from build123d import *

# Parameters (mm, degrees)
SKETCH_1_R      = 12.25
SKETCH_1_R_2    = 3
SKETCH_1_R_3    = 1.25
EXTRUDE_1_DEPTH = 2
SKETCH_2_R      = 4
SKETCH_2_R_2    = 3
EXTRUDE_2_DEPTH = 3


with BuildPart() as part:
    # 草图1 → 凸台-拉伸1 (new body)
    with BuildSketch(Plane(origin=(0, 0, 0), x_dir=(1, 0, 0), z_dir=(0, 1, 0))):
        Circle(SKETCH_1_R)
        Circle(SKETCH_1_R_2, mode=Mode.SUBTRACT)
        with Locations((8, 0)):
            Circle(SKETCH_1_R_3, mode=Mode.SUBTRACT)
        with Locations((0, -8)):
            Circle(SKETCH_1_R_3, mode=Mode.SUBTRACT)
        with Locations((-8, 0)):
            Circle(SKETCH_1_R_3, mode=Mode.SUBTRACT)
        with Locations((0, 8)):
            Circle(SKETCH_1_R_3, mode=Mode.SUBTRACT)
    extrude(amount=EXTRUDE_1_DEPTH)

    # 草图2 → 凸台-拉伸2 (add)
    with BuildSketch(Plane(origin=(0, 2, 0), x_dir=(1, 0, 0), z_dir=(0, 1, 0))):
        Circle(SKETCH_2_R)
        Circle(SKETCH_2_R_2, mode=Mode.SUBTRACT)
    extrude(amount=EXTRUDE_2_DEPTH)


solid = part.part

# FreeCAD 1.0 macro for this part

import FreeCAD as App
import Part
import Sketcher

V = App.Vector
Q = App.Units.Quantity

doc = App.newDocument("Part")
body = doc.addObject("PartDesign::Body", "Body")

# Sketch on XZ plane
sketch1 = body.newObject("Sketcher::SketchObject", "Sketch")
sketch1.AttachmentSupport = (doc.getObject("XZ_Plane"), [""])
sketch1.MapMode = "FlatFace"
sketch1.addGeometry(Part.Circle(V(0, 0, 0), V(0, 0, 1), 12.2), False)
sketch1.addGeometry(Part.Circle(V(0, 8, 0), V(0, 0, 1), 1.2), False)
sketch1.addGeometry(Part.Circle(V(-8, 0, 0), V(0, 0, 1), 1.2), False)
sketch1.addGeometry(Part.Circle(V(0, 0, 0), V(0, 0, 1), 3), False)
sketch1.addGeometry(Part.Circle(V(8, 0, 0), V(0, 0, 1), 1.2), False)
sketch1.addGeometry(Part.Circle(V(0, -8, 0), V(0, 0, 1), 1.2), False)
sketch1.addConstraint(Sketcher.Constraint("Coincident", 0, 3, -1, 1))
sketch1.addConstraint(Sketcher.Constraint("Coincident", 3, 3, -1, 1))
sketch1.addConstraint(Sketcher.Constraint("Equal", 1, 2))
sketch1.addConstraint(Sketcher.Constraint("Equal", 2, 4))
sketch1.addConstraint(Sketcher.Constraint("Equal", 4, 5))
sketch1.addConstraint(Sketcher.Constraint("Symmetric", 2, 3, 4, 3, -1, 1))
sketch1.addConstraint(Sketcher.Constraint("Symmetric", 1, 3, 5, 3, -1, 1))
sketch1.addConstraint(Sketcher.Constraint("PointOnObject", 1, 3, -2))
sketch1.addConstraint(Sketcher.Constraint("PointOnObject", 2, 3, -1))
sketch1.addConstraint(Sketcher.Constraint("Diameter", 3, Q("6 mm")))
sketch1.addConstraint(Sketcher.Constraint("Diameter", 0, Q("24.5 mm")))
sketch1.addConstraint(Sketcher.Constraint("Diameter", 1, Q("2.5 mm")))
sketch1.addConstraint(Sketcher.Constraint("DistanceY", -1, 1, 1, 3, Q("8 mm")))
sketch1.addConstraint(Sketcher.Constraint("DistanceX", 2, 3, -1, 1, Q("8 mm")))
pad1 = body.newObject("PartDesign::Pad", "Pad")
pad1.Profile = sketch1
pad1.Length = 2
pad1.Reversed = True

# Sketch on XZ plane
sketch2 = body.newObject("Sketcher::SketchObject", "Sketch001")
sketch2.AttachmentSupport = (doc.getObject("XZ_Plane"), [""])
sketch2.MapMode = "FlatFace"
sketch2.AttachmentOffset = App.Placement(V(0, 0, -2), App.Rotation())
sketch2.addGeometry(Part.Circle(V(0, 0, 0), V(0, 0, 1), 4), False)
sketch2.addGeometry(Part.Circle(V(0, 0, 0), V(0, 0, 1), 3), False)
sketch2.addConstraint(Sketcher.Constraint("Coincident", 0, 3, -1, 1))
sketch2.addConstraint(Sketcher.Constraint("Coincident", 1, 3, -1, 1))
sketch2.addConstraint(Sketcher.Constraint("Diameter", 0, Q("8 mm")))
sketch2.addConstraint(Sketcher.Constraint("Diameter", 1, Q("6 mm")))
pad2 = body.newObject("PartDesign::Pad", "Pad001")
pad2.Profile = sketch2
pad2.Length = 3
pad2.Reversed = True

doc.recompute()
